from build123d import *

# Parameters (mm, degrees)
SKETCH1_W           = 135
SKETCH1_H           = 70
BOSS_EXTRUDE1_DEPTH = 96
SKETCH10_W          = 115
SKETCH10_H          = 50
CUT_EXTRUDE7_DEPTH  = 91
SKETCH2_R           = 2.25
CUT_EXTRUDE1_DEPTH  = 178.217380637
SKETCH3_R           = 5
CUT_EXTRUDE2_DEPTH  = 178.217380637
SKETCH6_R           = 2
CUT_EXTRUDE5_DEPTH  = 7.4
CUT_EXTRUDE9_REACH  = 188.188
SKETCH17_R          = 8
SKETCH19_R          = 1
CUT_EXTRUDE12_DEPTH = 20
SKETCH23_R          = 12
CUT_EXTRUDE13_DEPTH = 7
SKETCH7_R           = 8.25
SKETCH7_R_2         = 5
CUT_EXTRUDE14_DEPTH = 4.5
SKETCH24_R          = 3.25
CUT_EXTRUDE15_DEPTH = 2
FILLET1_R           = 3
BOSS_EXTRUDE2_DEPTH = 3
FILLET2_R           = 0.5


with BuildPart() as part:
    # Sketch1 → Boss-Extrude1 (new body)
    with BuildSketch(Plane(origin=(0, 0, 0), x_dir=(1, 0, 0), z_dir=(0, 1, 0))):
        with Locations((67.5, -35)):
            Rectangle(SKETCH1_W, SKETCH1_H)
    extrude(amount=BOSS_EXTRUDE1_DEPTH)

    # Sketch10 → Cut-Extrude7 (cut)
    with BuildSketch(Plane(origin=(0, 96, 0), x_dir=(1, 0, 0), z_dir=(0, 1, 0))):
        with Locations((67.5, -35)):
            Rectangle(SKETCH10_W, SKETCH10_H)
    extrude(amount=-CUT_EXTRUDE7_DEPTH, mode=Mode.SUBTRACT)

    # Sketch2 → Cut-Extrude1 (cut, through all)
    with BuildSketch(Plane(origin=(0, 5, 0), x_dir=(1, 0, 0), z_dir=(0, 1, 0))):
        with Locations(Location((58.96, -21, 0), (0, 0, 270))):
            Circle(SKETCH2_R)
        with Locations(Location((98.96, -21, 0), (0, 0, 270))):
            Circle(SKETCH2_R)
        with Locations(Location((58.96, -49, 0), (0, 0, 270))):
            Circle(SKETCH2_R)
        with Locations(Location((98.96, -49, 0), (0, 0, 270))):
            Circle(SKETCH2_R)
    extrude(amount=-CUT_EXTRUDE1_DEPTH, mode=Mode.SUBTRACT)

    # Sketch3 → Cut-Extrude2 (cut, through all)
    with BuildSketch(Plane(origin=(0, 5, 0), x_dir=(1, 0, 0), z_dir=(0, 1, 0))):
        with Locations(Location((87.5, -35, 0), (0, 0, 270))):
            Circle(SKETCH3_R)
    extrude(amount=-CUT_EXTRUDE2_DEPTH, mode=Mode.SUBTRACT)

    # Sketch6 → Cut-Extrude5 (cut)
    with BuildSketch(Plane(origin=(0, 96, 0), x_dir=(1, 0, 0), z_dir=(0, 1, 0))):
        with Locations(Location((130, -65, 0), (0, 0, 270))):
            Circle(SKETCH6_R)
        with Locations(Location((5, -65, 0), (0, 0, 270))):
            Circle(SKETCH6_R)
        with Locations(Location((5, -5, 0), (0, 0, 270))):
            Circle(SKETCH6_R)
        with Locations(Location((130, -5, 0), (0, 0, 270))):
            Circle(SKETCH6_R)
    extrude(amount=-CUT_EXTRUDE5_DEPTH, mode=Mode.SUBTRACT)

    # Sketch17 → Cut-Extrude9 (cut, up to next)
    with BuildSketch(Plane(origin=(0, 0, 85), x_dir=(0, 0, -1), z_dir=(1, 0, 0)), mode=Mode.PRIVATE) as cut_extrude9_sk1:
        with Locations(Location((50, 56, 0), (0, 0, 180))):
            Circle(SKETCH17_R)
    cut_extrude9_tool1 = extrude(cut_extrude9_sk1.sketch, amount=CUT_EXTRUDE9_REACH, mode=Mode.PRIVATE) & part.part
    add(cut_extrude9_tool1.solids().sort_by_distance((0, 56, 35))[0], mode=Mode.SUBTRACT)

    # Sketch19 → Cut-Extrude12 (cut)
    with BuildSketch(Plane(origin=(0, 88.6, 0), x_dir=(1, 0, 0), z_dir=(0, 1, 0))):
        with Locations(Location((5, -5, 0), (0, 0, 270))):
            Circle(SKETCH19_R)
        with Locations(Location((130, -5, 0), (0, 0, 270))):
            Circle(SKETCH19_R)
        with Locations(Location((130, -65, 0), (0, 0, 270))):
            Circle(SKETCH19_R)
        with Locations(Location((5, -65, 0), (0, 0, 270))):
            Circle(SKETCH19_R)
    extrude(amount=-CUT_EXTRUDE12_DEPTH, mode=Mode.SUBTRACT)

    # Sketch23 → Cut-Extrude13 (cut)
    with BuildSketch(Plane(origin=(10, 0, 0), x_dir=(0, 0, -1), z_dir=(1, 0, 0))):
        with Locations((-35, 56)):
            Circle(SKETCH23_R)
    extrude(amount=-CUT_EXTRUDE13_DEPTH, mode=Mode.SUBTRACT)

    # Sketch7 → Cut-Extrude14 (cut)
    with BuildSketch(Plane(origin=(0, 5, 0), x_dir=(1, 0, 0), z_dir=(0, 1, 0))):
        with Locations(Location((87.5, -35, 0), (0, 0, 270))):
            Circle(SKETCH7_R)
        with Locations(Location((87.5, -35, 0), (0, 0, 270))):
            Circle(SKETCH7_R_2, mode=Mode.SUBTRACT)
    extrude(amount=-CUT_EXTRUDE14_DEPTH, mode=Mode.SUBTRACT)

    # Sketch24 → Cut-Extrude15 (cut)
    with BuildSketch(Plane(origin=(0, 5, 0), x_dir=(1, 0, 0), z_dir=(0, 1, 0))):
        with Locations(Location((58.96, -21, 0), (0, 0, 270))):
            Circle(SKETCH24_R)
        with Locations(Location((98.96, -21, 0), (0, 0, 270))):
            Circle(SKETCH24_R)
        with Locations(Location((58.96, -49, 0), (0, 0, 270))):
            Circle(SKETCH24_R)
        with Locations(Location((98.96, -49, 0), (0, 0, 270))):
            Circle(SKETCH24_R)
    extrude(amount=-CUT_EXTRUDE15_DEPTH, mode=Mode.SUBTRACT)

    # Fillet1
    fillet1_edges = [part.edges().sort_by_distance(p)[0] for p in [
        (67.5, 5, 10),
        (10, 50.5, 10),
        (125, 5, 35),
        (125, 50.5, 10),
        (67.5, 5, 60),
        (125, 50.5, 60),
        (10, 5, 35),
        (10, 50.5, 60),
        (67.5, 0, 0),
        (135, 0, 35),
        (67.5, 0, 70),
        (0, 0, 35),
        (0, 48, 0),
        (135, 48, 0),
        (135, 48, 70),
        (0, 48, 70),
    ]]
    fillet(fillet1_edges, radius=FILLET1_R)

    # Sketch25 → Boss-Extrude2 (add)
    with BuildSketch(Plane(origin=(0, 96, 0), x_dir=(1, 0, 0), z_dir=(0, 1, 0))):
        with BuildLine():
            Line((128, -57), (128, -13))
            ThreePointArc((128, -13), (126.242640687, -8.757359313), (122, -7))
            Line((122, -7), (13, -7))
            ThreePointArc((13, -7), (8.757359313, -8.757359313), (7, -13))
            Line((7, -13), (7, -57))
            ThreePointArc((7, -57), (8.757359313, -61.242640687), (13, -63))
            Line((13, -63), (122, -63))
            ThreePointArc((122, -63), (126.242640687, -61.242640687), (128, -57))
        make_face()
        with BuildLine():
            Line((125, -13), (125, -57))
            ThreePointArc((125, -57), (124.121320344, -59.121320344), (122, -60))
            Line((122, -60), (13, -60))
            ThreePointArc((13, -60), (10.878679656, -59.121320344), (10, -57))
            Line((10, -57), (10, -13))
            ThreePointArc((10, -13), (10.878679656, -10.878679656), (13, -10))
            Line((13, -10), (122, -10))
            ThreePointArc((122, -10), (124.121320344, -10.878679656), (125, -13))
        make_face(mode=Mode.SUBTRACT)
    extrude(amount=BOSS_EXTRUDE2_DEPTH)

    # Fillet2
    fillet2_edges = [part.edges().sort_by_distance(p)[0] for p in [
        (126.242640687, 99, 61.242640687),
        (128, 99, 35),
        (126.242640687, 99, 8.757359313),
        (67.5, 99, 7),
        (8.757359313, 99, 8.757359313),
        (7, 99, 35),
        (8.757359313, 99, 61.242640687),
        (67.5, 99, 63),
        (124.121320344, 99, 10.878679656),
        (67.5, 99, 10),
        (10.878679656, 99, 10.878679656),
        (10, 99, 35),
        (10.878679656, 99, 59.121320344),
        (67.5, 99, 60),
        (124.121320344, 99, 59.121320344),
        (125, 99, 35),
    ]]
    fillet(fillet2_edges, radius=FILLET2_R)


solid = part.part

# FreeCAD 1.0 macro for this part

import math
import FreeCAD as App
import Part
import Sketcher
from FreeCAD import Vector


def edges_at(feature, points):
    """Names of the edges that pass closest to the given points."""
    edges = feature.Shape.Edges
    near = lambda p: min(range(len(edges)), key=lambda i: edges[i].distToShape(Part.Vertex(*p))[0])
    return sorted({f"Edge{near(p) + 1}" for p in points})


def add_polygon(sketch, points):
    """Adds a closed chain of lines whose ends are joined by coincident constraints."""
    first, n = sketch.GeometryCount, len(points)
    for a, b in zip(points, points[1:] + points[:1]):
        sketch.addGeometry(Part.LineSegment(App.Vector(*a, 0), App.Vector(*b, 0)), False)
    for i in range(n):
        sketch.addConstraint(Sketcher.Constraint("Coincident", first + i, 2, first + (i + 1) % n, 1))

doc = App.newDocument("Part")
params = doc.addObject("Spreadsheet::Sheet", "Params")
for row, (alias, value) in enumerate([
    ("sketch1_width", "135 mm"),
    ("sketch1_height", "70 mm"),
    ("pad1_length", "96 mm"),
    ("sketch2_width", "115 mm"),
    ("sketch2_height", "50 mm"),
    ("pocket1_length", "91 mm"),
    ("sketch3_diameter", "4.5 mm"),
    ("sketch4_diameter", "10 mm"),
    ("sketch5_diameter", "4 mm"),
    ("pocket4_length", "7.4 mm"),
    ("sketch6_diameter", "16 mm"),
    ("sketch7_diameter", "2 mm"),
    ("pocket6_length", "20 mm"),
    ("sketch8_diameter", "24 mm"),
    ("pocket7_length", "7 mm"),
    ("sketch9_diameter", "10 mm"),
    ("sketch9_diameter2", "16.5 mm"),
    ("pocket8_length", "4.5 mm"),
    ("sketch10_diameter", "6.5 mm"),
    ("pocket9_length", "2 mm"),
    ("fillet_radius", "3 mm"),
    ("sketch11_radius", "6 mm"),
    ("sketch11_radius2", "3 mm"),
    ("sketch11_width", "109 mm"),
    ("sketch11_height", "44 mm"),
    ("pad2_length", "3 mm"),
    ("fillet2_radius", "0.5 mm"),
], start=1):
    params.set(f"A{row}", alias)
    params.set(f"B{row}", "=" + value)
    params.setAlias(f"B{row}", alias)

body = doc.addObject("PartDesign::Body", "Body")

sketch1 = body.newObject("Sketcher::SketchObject", "Sketch")
sketch1.AttachmentSupport = (doc.getObject("XZ_Plane"), [""])
sketch1.MapMode = "FlatFace"
add_polygon(sketch1, [(0, 0), (0, 70), (135, 70), (135, 0)])
sketch1.addConstraint([
    Sketcher.Constraint("Vertical", 0),
    Sketcher.Constraint("Horizontal", 1),
    Sketcher.Constraint("Vertical", 2),
    Sketcher.Constraint("Horizontal", 3),
    Sketcher.Constraint("Coincident", 3, 2, -1, 1),
    Sketcher.Constraint("DistanceX", 1, 1, 1, 2, 135.0),
    Sketcher.Constraint("DistanceY", 0, 1, 0, 2, 70.0),
])
sketch1.setExpression("Constraints[9]", "Params.sketch1_width")
sketch1.setExpression("Constraints[10]", "Params.sketch1_height")
pad1 = body.newObject("PartDesign::Pad", "Pad")
pad1.Profile = sketch1
pad1.setExpression("Length", "Params.pad1_length")
pad1.Reversed = True

sketch2 = body.newObject("Sketcher::SketchObject", "Sketch001")
sketch2.AttachmentSupport = (doc.getObject("XZ_Plane"), [""])
sketch2.MapMode = "FlatFace"
sketch2.AttachmentOffset = App.Placement(Vector(0, 0, -96), App.Rotation())
add_polygon(sketch2, [(10, 10), (10, 60), (125, 60), (125, 10)])
sketch2.addConstraint([
    Sketcher.Constraint("Vertical", 0),
    Sketcher.Constraint("Horizontal", 1),
    Sketcher.Constraint("Vertical", 2),
    Sketcher.Constraint("Horizontal", 3),
    Sketcher.Constraint("DistanceX", 1, 1, 1, 2, 115.0),
    Sketcher.Constraint("DistanceY", 0, 1, 0, 2, 50.0),
    Sketcher.Constraint("DistanceX", -1, 1, 0, 2, 10.0),
    Sketcher.Constraint("DistanceY", -1, 1, 0, 2, 60.0),
])
sketch2.setExpression("Constraints[8]", "Params.sketch2_width")
sketch2.setExpression("Constraints[9]", "Params.sketch2_height")
pocket1 = body.newObject("PartDesign::Pocket", "Pocket")
pocket1.Profile = sketch2
pocket1.setExpression("Length", "Params.pocket1_length")
pocket1.Reversed = True

sketch3 = body.newObject("Sketcher::SketchObject", "Sketch002")
sketch3.AttachmentSupport = (doc.getObject("XZ_Plane"), [""])
sketch3.MapMode = "FlatFace"
sketch3.AttachmentOffset = App.Placement(Vector(0, 0, -5), App.Rotation())
sketch3.addGeometry([
    Part.Circle(Vector(59, 21, 0), Vector(0, 0, 1), 2.2),
    Part.Circle(Vector(99, 21, 0), Vector(0, 0, 1), 2.2),
    Part.Circle(Vector(59, 49, 0), Vector(0, 0, 1), 2.2),
    Part.Circle(Vector(99, 49, 0), Vector(0, 0, 1), 2.2),
], False)
sketch3.addConstraint([
    Sketcher.Constraint("Equal", 0, 1),
    Sketcher.Constraint("Equal", 1, 2),
    Sketcher.Constraint("Equal", 2, 3),
    Sketcher.Constraint("Horizontal", 0, 3, 1, 3),
    Sketcher.Constraint("Horizontal", 2, 3, 3, 3),
    Sketcher.Constraint("Vertical", 0, 3, 2, 3),
    Sketcher.Constraint("Vertical", 1, 3, 3, 3),
    Sketcher.Constraint("Diameter", 0, 4.5),
    Sketcher.Constraint("DistanceY", -1, 1, 0, 3, 21.0),
    Sketcher.Constraint("DistanceY", -1, 1, 2, 3, 49.0),
    Sketcher.Constraint("DistanceX", 0, 3, 1, 3, 40.0),
    Sketcher.Constraint("DistanceX", -1, 1, 0, 3, 58.96),
])
sketch3.setExpression("Constraints[7]", "Params.sketch3_diameter")
pocket2 = body.newObject("PartDesign::Pocket", "Pocket001")
pocket2.Profile = sketch3
pocket2.Type = "ThroughAll"
pocket2.Reversed = True

sketch4 = body.newObject("Sketcher::SketchObject", "Sketch003")
sketch4.AttachmentSupport = (doc.getObject("XZ_Plane"), [""])
sketch4.MapMode = "FlatFace"
sketch4.AttachmentOffset = App.Placement(Vector(0, 0, -5), App.Rotation())
sketch4.addGeometry(Part.Circle(Vector(88, 35, 0), Vector(0, 0, 1), 5), False)
sketch4.addConstraint([
    Sketcher.Constraint("Diameter", 0, 10.0),
    Sketcher.Constraint("DistanceY", -1, 1, 0, 3, 35.0),
    Sketcher.Constraint("DistanceX", -1, 1, 0, 3, 87.5),
])
sketch4.setExpression("Constraints[0]", "Params.sketch4_diameter")
pocket3 = body.newObject("PartDesign::Pocket", "Pocket002")
pocket3.Profile = sketch4
pocket3.Type = "ThroughAll"
pocket3.Reversed = True

sketch5 = body.newObject("Sketcher::SketchObject", "Sketch004")
sketch5.AttachmentSupport = (doc.getObject("XZ_Plane"), [""])
sketch5.MapMode = "FlatFace"
sketch5.AttachmentOffset = App.Placement(Vector(0, 0, -96), App.Rotation())
sketch5.addGeometry([
    Part.Circle(Vector(130, 65, 0), Vector(0, 0, 1), 2),
    Part.Circle(Vector(5, 65, 0), Vector(0, 0, 1), 2),
    Part.Circle(Vector(5, 5, 0), Vector(0, 0, 1), 2),
    Part.Circle(Vector(130, 5, 0), Vector(0, 0, 1), 2),
], False)
sketch5.addConstraint([
    Sketcher.Constraint("Equal", 0, 1),
    Sketcher.Constraint("Equal", 1, 2),
    Sketcher.Constraint("Equal", 2, 3),
    Sketcher.Constraint("Horizontal", 0, 3, 1, 3),
    Sketcher.Constraint("Horizontal", 2, 3, 3, 3),
    Sketcher.Constraint("Vertical", 1, 3, 2, 3),
    Sketcher.Constraint("Vertical", 0, 3, 3, 3),
    Sketcher.Constraint("Diameter", 0, 4.0),
    Sketcher.Constraint("DistanceX", -1, 1, 0, 3, 130.0),
    Sketcher.Constraint("DistanceY", -1, 1, 0, 3, 65.0),
    Sketcher.Constraint("DistanceX", -1, 1, 1, 3, 5.0),
    Sketcher.Constraint("DistanceY", -1, 1, 2, 3, 5.0),
])
sketch5.setExpression("Constraints[7]", "Params.sketch5_diameter")
pocket4 = body.newObject("PartDesign::Pocket", "Pocket003")
pocket4.Profile = sketch5
pocket4.setExpression("Length", "Params.pocket4_length")
pocket4.Reversed = True

sketch6 = body.newObject("Sketcher::SketchObject", "Sketch005")
sketch6.AttachmentSupport = (doc.getObject("YZ_Plane"), [""])
sketch6.MapMode = "FlatFace"
sketch6.addGeometry(Part.Circle(Vector(56, 35, 0), Vector(0, 0, 1), 8), False)
sketch6.addConstraint([
    Sketcher.Constraint("Diameter", 0, 16.0),
    Sketcher.Constraint("DistanceX", -1, 1, 0, 3, 56.0),
    Sketcher.Constraint("DistanceY", -1, 1, 0, 3, 35.0),
])
sketch6.setExpression("Constraints[0]", "Params.sketch6_diameter")
pocket5 = body.newObject("PartDesign::Pocket", "Pocket004")
pocket5.Profile = sketch6
pocket5.Type = "UpToFirst"
pocket5.Reversed = True

sketch7 = body.newObject("Sketcher::SketchObject", "Sketch006")
sketch7.AttachmentSupport = (doc.getObject("XZ_Plane"), [""])
sketch7.MapMode = "FlatFace"
sketch7.AttachmentOffset = App.Placement(Vector(0, 0, -88.6), App.Rotation())
sketch7.addGeometry([
    Part.Circle(Vector(5, 5, 0), Vector(0, 0, 1), 1),
    Part.Circle(Vector(130, 5, 0), Vector(0, 0, 1), 1),
    Part.Circle(Vector(130, 65, 0), Vector(0, 0, 1), 1),
    Part.Circle(Vector(5, 65, 0), Vector(0, 0, 1), 1),
], False)
sketch7.addConstraint([
    Sketcher.Constraint("Equal", 0, 1),
    Sketcher.Constraint("Equal", 1, 2),
    Sketcher.Constraint("Equal", 2, 3),
    Sketcher.Constraint("Horizontal", 0, 3, 1, 3),
    Sketcher.Constraint("Horizontal", 2, 3, 3, 3),
    Sketcher.Constraint("Vertical", 1, 3, 2, 3),
    Sketcher.Constraint("Vertical", 0, 3, 3, 3),
    Sketcher.Constraint("Diameter", 0, 2.0),
    Sketcher.Constraint("DistanceX", -1, 1, 0, 3, 5.0),
    Sketcher.Constraint("DistanceY", -1, 1, 0, 3, 5.0),
    Sketcher.Constraint("DistanceX", -1, 1, 1, 3, 130.0),
    Sketcher.Constraint("DistanceY", -1, 1, 2, 3, 65.0),
])
sketch7.setExpression("Constraints[7]", "Params.sketch7_diameter")
pocket6 = body.newObject("PartDesign::Pocket", "Pocket005")
pocket6.Profile = sketch7
pocket6.setExpression("Length", "Params.pocket6_length")
pocket6.Reversed = True

sketch8 = body.newObject("Sketcher::SketchObject", "Sketch007")
sketch8.AttachmentSupport = (doc.getObject("YZ_Plane"), [""])
sketch8.MapMode = "FlatFace"
sketch8.AttachmentOffset = App.Placement(Vector(0, 0, 10), App.Rotation())
sketch8.addGeometry(Part.Circle(Vector(56, 35, 0), Vector(0, 0, 1), 12), False)
sketch8.addConstraint([
    Sketcher.Constraint("Diameter", 0, 24.0),
    Sketcher.Constraint("DistanceX", -1, 1, 0, 3, 56.0),
    Sketcher.Constraint("DistanceY", -1, 1, 0, 3, 35.0),
])
sketch8.setExpression("Constraints[0]", "Params.sketch8_diameter")
pocket7 = body.newObject("PartDesign::Pocket", "Pocket006")
pocket7.Profile = sketch8
pocket7.setExpression("Length", "Params.pocket7_length")

sketch9 = body.newObject("Sketcher::SketchObject", "Sketch008")
sketch9.AttachmentSupport = (doc.getObject("XZ_Plane"), [""])
sketch9.MapMode = "FlatFace"
sketch9.AttachmentOffset = App.Placement(Vector(0, 0, -5), App.Rotation())
sketch9.addGeometry([
    Part.Circle(Vector(88, 35, 0), Vector(0, 0, 1), 8),
    Part.Circle(Vector(88, 35, 0), Vector(0, 0, 1), 5),
], False)
sketch9.addConstraint([
    Sketcher.Constraint("Coincident", 1, 3, 0, 3),
    Sketcher.Constraint("Diameter", 1, 10.0),
    Sketcher.Constraint("Diameter", 0, 16.5),
    Sketcher.Constraint("DistanceY", -1, 1, 0, 3, 35.0),
    Sketcher.Constraint("DistanceX", -1, 1, 0, 3, 87.5),
])
sketch9.setExpression("Constraints[1]", "Params.sketch9_diameter")
sketch9.setExpression("Constraints[2]", "Params.sketch9_diameter2")
pocket8 = body.newObject("PartDesign::Pocket", "Pocket007")
pocket8.Profile = sketch9
pocket8.setExpression("Length", "Params.pocket8_length")
pocket8.Reversed = True

sketch10 = body.newObject("Sketcher::SketchObject", "Sketch009")
sketch10.AttachmentSupport = (doc.getObject("XZ_Plane"), [""])
sketch10.MapMode = "FlatFace"
sketch10.AttachmentOffset = App.Placement(Vector(0, 0, -5), App.Rotation())
sketch10.addGeometry([
    Part.Circle(Vector(59, 21, 0), Vector(0, 0, 1), 3.2),
    Part.Circle(Vector(99, 21, 0), Vector(0, 0, 1), 3.2),
    Part.Circle(Vector(59, 49, 0), Vector(0, 0, 1), 3.2),
    Part.Circle(Vector(99, 49, 0), Vector(0, 0, 1), 3.2),
], False)
sketch10.addConstraint([
    Sketcher.Constraint("Equal", 0, 1),
    Sketcher.Constraint("Equal", 1, 2),
    Sketcher.Constraint("Equal", 2, 3),
    Sketcher.Constraint("Horizontal", 0, 3, 1, 3),
    Sketcher.Constraint("Horizontal", 2, 3, 3, 3),
    Sketcher.Constraint("Vertical", 0, 3, 2, 3),
    Sketcher.Constraint("Vertical", 1, 3, 3, 3),
    Sketcher.Constraint("Diameter", 0, 6.5),
    Sketcher.Constraint("DistanceY", -1, 1, 0, 3, 21.0),
    Sketcher.Constraint("DistanceY", -1, 1, 2, 3, 49.0),
    Sketcher.Constraint("DistanceX", 0, 3, 1, 3, 40.0),
    Sketcher.Constraint("DistanceX", -1, 1, 0, 3, 58.96),
])
sketch10.setExpression("Constraints[7]", "Params.sketch10_diameter")
pocket9 = body.newObject("PartDesign::Pocket", "Pocket008")
pocket9.Profile = sketch10
pocket9.setExpression("Length", "Params.pocket9_length")
pocket9.Reversed = True
doc.recompute()

fillet = body.newObject("PartDesign::Fillet", "Fillet")
fillet.Base = (pocket9, edges_at(pocket9, [
    (67.5, 5, 10),
    (10, 50.5, 10),
    (125, 5, 35),
    (125, 50.5, 10),
    (67.5, 5, 60),
    (125, 50.5, 60),
    (10, 5, 35),
    (10, 50.5, 60),
    (67.5, 0, 0),
    (135, 0, 35),
    (67.5, 0, 70),
    (0, 0, 35),
    (0, 48, 0),
    (135, 48, 0),
    (135, 48, 70),
    (0, 48, 70),
]))
fillet.setExpression("Radius", "Params.fillet_radius")

sketch11 = body.newObject("Sketcher::SketchObject", "Sketch010")
sketch11.AttachmentSupport = (doc.getObject("XZ_Plane"), [""])
sketch11.MapMode = "FlatFace"
sketch11.AttachmentOffset = App.Placement(Vector(0, 0, -96), App.Rotation())
sketch11.addGeometry([
    Part.LineSegment(Vector(128, 57, 0), Vector(128, 13, 0)),
    Part.ArcOfCircle(Part.Circle(Vector(122, 13, 0), Vector(0, 0, 1), 6), math.radians(-90), math.radians(0)),
    Part.LineSegment(Vector(122, 7, 0), Vector(13, 7, 0)),
    Part.ArcOfCircle(Part.Circle(Vector(13, 13, 0), Vector(0, 0, 1), 6), math.radians(180), math.radians(270)),
    Part.LineSegment(Vector(7, 13, 0), Vector(7, 57, 0)),
    Part.ArcOfCircle(Part.Circle(Vector(13, 57, 0), Vector(0, 0, 1), 6), math.radians(90), math.radians(180)),
    Part.LineSegment(Vector(13, 63, 0), Vector(122, 63, 0)),
    Part.ArcOfCircle(Part.Circle(Vector(122, 57, 0), Vector(0, 0, 1), 6), math.radians(0), math.radians(90)),
    Part.ArcOfCircle(Part.Circle(Vector(122, 13, 0), Vector(0, 0, 1), 3), math.radians(-90), math.radians(0)),
    Part.LineSegment(Vector(125, 13, 0), Vector(125, 57, 0)),
    Part.ArcOfCircle(Part.Circle(Vector(122, 57, 0), Vector(0, 0, 1), 3), math.radians(0), math.radians(90)),
    Part.LineSegment(Vector(122, 60, 0), Vector(13, 60, 0)),
    Part.ArcOfCircle(Part.Circle(Vector(13, 57, 0), Vector(0, 0, 1), 3), math.radians(90), math.radians(180)),
    Part.LineSegment(Vector(10, 57, 0), Vector(10, 13, 0)),
    Part.ArcOfCircle(Part.Circle(Vector(13, 13, 0), Vector(0, 0, 1), 3), math.radians(180), math.radians(270)),
    Part.LineSegment(Vector(13, 10, 0), Vector(122, 10, 0)),
], False)
sketch11.addConstraint([
    Sketcher.Constraint("Tangent", 0, 2, 1, 2),
    Sketcher.Constraint("Tangent", 1, 1, 2, 1),
    Sketcher.Constraint("Tangent", 2, 2, 3, 2),
    Sketcher.Constraint("Tangent", 3, 1, 4, 1),
    Sketcher.Constraint("Tangent", 4, 2, 5, 2),
    Sketcher.Constraint("Tangent", 5, 1, 6, 1),
    Sketcher.Constraint("Tangent", 6, 2, 7, 2),
    Sketcher.Constraint("Tangent", 7, 1, 0, 1),
    Sketcher.Constraint("Tangent", 8, 2, 9, 1),
    Sketcher.Constraint("Tangent", 9, 2, 10, 1),
    Sketcher.Constraint("Tangent", 10, 2, 11, 1),
    Sketcher.Constraint("Tangent", 11, 2, 12, 1),
    Sketcher.Constraint("Tangent", 12, 2, 13, 1),
    Sketcher.Constraint("Tangent", 13, 2, 14, 1),
    Sketcher.Constraint("Tangent", 14, 2, 15, 1),
    Sketcher.Constraint("Tangent", 15, 2, 8, 1),
    Sketcher.Constraint("Vertical", 0),
    Sketcher.Constraint("Horizontal", 2),
    Sketcher.Constraint("Vertical", 4),
    Sketcher.Constraint("Horizontal", 6),
    Sketcher.Constraint("Vertical", 9),
    Sketcher.Constraint("Horizontal", 11),
    Sketcher.Constraint("Vertical", 13),
    Sketcher.Constraint("Horizontal", 15),
    Sketcher.Constraint("Coincident", 8, 3, 1, 3),
    Sketcher.Constraint("Coincident", 10, 3, 7, 3),
    Sketcher.Constraint("Coincident", 12, 3, 5, 3),
    Sketcher.Constraint("Equal", 1, 3),
    Sketcher.Constraint("Equal", 3, 5),
    Sketcher.Constraint("Equal", 5, 7),
    Sketcher.Constraint("Equal", 12, 14),
    Sketcher.Constraint("Radius", 1, 6.0),
    Sketcher.Constraint("Radius", 8, 3.0),
    Sketcher.Constraint("DistanceX", 2, 2, 2, 1, 109.0),
    Sketcher.Constraint("DistanceY", 0, 2, 0, 1, 44.0),
    Sketcher.Constraint("DistanceX", -1, 1, 1, 3, 122.0),
    Sketcher.Constraint("DistanceY", -1, 1, 1, 3, 13.0),
])
sketch11.setExpression("Constraints[31]", "Params.sketch11_radius")
sketch11.setExpression("Constraints[32]", "Params.sketch11_radius2")
sketch11.setExpression("Constraints[33]", "Params.sketch11_width")
sketch11.setExpression("Constraints[34]", "Params.sketch11_height")
pad2 = body.newObject("PartDesign::Pad", "Pad001")
pad2.Profile = sketch11
pad2.setExpression("Length", "Params.pad2_length")
pad2.Reversed = True
doc.recompute()

fillet2 = body.newObject("PartDesign::Fillet", "Fillet001")
fillet2.Base = (pad2, edges_at(pad2, [
    (126.243, 99, 61.243),
    (128, 99, 35),
    (126.243, 99, 8.757),
    (67.5, 99, 7),
    (8.757, 99, 8.757),
    (7, 99, 35),
    (8.757, 99, 61.243),
    (67.5, 99, 63),
    (124.121, 99, 10.879),
    (67.5, 99, 10),
    (10.879, 99, 10.879),
    (10, 99, 35),
    (10.879, 99, 59.121),
    (67.5, 99, 60),
    (124.121, 99, 59.121),
    (125, 99, 35),
]))
fillet2.setExpression("Radius", "Params.fillet2_radius")

doc.recompute()
